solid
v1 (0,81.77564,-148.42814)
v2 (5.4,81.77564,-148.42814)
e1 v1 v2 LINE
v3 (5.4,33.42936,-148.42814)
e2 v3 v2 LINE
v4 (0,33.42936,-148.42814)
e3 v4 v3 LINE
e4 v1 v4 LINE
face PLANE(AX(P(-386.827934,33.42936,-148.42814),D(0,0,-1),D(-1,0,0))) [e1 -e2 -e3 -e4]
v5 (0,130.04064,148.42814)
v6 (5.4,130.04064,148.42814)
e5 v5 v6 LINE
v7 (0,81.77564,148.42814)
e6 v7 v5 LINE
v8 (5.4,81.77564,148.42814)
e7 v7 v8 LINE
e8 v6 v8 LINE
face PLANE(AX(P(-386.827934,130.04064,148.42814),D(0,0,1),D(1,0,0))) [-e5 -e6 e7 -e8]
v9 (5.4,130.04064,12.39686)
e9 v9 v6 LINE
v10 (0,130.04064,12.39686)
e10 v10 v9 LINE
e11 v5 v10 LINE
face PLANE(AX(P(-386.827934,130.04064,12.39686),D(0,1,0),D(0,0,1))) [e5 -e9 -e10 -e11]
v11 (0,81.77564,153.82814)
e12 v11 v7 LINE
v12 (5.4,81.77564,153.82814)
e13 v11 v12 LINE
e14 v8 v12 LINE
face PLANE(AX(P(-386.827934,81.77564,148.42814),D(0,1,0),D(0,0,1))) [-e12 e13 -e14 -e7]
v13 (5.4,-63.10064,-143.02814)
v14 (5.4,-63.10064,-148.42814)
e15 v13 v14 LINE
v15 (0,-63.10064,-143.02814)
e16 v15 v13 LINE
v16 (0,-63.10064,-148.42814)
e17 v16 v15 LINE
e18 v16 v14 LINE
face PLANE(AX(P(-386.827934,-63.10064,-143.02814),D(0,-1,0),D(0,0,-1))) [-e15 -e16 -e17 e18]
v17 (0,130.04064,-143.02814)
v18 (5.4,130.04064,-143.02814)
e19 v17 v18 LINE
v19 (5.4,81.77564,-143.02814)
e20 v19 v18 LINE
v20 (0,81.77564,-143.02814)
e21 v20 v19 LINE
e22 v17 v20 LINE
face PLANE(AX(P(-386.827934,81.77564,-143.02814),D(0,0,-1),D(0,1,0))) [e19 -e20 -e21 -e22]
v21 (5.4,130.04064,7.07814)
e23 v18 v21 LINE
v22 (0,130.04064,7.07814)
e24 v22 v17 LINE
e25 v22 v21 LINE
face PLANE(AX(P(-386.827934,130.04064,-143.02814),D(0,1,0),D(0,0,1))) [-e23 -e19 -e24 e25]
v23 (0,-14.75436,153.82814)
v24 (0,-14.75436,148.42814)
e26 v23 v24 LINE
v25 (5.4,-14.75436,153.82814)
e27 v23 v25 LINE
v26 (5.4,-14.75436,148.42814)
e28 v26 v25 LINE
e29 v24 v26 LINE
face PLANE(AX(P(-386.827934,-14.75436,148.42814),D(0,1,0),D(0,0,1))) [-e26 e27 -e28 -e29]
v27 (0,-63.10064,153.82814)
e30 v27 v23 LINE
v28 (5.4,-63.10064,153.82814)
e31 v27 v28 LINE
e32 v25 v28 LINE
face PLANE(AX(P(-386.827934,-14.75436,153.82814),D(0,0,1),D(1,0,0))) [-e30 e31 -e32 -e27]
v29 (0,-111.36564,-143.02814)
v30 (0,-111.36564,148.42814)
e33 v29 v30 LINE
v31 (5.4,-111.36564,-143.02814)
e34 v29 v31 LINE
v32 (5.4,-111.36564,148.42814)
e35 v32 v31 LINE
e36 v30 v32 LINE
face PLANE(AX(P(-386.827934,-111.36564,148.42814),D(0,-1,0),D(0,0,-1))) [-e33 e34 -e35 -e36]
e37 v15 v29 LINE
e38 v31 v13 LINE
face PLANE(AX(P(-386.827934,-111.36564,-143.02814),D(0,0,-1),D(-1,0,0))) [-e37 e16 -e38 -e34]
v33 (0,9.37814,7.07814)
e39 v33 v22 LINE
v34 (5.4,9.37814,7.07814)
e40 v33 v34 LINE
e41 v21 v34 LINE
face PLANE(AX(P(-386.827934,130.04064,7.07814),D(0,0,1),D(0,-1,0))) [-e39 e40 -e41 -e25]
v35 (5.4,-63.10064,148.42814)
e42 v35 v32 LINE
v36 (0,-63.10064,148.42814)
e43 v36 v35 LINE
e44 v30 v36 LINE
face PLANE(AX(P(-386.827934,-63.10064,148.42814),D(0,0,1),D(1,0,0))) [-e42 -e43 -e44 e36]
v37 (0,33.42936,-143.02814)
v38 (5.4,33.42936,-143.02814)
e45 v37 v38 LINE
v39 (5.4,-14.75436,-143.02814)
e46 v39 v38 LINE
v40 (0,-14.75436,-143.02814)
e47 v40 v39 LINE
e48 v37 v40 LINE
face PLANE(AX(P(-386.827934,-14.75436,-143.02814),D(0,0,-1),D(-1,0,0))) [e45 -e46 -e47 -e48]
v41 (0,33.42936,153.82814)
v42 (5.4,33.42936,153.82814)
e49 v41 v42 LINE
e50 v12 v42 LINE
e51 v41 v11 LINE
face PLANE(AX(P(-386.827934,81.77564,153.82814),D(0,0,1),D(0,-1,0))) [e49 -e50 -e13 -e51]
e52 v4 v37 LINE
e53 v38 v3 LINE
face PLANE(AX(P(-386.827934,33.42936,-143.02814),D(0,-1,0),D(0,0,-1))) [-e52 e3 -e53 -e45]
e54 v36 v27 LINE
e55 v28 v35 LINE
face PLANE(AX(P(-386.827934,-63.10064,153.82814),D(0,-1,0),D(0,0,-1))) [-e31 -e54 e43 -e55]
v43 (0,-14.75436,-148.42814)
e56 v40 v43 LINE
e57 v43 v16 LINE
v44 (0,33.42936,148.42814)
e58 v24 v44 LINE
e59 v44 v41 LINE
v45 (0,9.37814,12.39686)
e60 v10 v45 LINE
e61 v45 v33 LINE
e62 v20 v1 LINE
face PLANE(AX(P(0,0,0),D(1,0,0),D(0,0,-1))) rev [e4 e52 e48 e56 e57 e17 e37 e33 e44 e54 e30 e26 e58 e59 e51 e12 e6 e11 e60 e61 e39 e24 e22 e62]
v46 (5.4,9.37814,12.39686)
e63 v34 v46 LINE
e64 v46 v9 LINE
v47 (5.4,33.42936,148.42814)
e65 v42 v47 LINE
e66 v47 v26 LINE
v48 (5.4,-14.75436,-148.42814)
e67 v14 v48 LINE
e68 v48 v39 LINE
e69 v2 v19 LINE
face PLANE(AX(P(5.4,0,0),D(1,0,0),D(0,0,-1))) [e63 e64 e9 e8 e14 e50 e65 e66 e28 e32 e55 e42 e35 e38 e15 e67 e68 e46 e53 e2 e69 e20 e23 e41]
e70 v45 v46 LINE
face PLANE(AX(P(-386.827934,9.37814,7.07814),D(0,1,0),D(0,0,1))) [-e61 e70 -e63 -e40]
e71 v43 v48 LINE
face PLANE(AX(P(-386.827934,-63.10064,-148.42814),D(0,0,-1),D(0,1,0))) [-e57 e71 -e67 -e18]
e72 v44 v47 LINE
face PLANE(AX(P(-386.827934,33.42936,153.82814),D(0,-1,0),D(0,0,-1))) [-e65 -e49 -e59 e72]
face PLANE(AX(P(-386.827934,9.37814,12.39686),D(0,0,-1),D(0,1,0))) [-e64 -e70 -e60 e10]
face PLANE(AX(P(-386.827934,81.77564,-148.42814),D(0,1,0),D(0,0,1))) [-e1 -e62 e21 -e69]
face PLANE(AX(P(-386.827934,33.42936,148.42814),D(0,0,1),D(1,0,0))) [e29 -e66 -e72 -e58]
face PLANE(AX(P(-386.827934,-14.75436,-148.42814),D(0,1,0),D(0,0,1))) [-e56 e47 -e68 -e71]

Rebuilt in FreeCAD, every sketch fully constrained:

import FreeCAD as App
import Part
import Sketcher

V = App.Vector
Q = App.Units.Quantity

doc = App.newDocument("Part")
params = doc.addObject("Spreadsheet::Sheet", "Params")
for row, (alias, value) in enumerate([
    ("sketch1_height", "5.4 mm"),
    ("sketch1_height2", "135.95 mm"),
    ("pad1_length", "5.4 mm"),
    ("sketch2_height", "5.4 mm"),
    ("pad2_length", "5.4 mm"),
], start=1):
    params.set(f"A{row}", alias)
    params.set(f"B{row}", "=" + value)
    params.setAlias(f"B{row}", alias)

body = doc.addObject("PartDesign::Body", "Body")

# Sketch on YZ plane
sketch1 = body.newObject("Sketcher::SketchObject", "Sketch")
sketch1.AttachmentSupport = (doc.getObject("YZ_Plane"), [""])
sketch1.MapMode = "FlatFace"
sketch1.addGeometry(Part.LineSegment(V(130, -142.9875, 0), V(130, 7.0375, 0)), False)
sketch1.addGeometry(Part.LineSegment(V(130, 7.0375, 0), V(9.3375, 7.0375, 0)), False)
sketch1.addGeometry(Part.LineSegment(V(9.3375, 7.0375, 0), V(9.3375, 12.4375, 0)), False)
sketch1.addGeometry(Part.LineSegment(V(9.3375, 12.4375, 0), V(130, 12.4375, 0)), False)
sketch1.addGeometry(Part.LineSegment(V(130, 12.4375, 0), V(130, 148.3875, 0)), False)
sketch1.addGeometry(Part.LineSegment(V(130, 148.3875, 0), V(81.735, 148.3875, 0)), False)
sketch1.addGeometry(Part.LineSegment(V(81.735, 148.3875, 0), V(81.735, 153.7875, 0)), False)
sketch1.addGeometry(Part.LineSegment(V(81.735, 153.7875, 0), V(33.47, 153.7875, 0)), False)
sketch1.addGeometry(Part.LineSegment(V(33.47, 153.7875, 0), V(33.47, 148.3875, 0)), False)
sketch1.addGeometry(Part.LineSegment(V(33.47, 148.3875, 0), V(-14.795, 148.3875, 0)), False)
sketch1.addGeometry(Part.LineSegment(V(-14.795, 148.3875, 0), V(-14.795, 153.7875, 0)), False)
sketch1.addGeometry(Part.LineSegment(V(-14.795, 153.7875, 0), V(-63.06, 153.7875, 0)), False)
sketch1.addGeometry(Part.LineSegment(V(-63.06, 153.7875, 0), V(-63.06, 148.3875, 0)), False)
sketch1.addGeometry(Part.LineSegment(V(-63.06, 148.3875, 0), V(-111.325, 148.3875, 0)), False)
sketch1.addGeometry(Part.LineSegment(V(-111.325, 148.3875, 0), V(-111.325, -142.9875, 0)), False)
sketch1.addGeometry(Part.LineSegment(V(-111.325, -142.9875, 0), V(-63.06, -142.9875, 0)), False)
sketch1.addGeometry(Part.LineSegment(V(-63.06, -142.9875, 0), V(-63.06, -148.3875, 0)), False)
sketch1.addGeometry(Part.LineSegment(V(-63.06, -148.3875, 0), V(-14.795, -148.3875, 0)), False)
sketch1.addGeometry(Part.LineSegment(V(-14.795, -148.3875, 0), V(-14.795, -142.9875, 0)), False)
sketch1.addGeometry(Part.LineSegment(V(-14.795, -142.9875, 0), V(33.47, -142.9875, 0)), False)
sketch1.addGeometry(Part.LineSegment(V(33.47, -142.9875, 0), V(33.47, -148.3875, 0)), False)
sketch1.addGeometry(Part.LineSegment(V(33.47, -148.3875, 0), V(81.735, -148.3875, 0)), False)
sketch1.addGeometry(Part.LineSegment(V(81.735, -148.3875, 0), V(81.735, -142.9875, 0)), False)
sketch1.addGeometry(Part.LineSegment(V(81.735, -142.9875, 0), V(130, -142.9875, 0)), False)
sketch1.addConstraint(Sketcher.Constraint("Coincident", 0, 2, 1, 1))
sketch1.addConstraint(Sketcher.Constraint("Coincident", 1, 2, 2, 1))
sketch1.addConstraint(Sketcher.Constraint("Coincident", 2, 2, 3, 1))
sketch1.addConstraint(Sketcher.Constraint("Coincident", 3, 2, 4, 1))
sketch1.addConstraint(Sketcher.Constraint("Coincident", 4, 2, 5, 1))
sketch1.addConstraint(Sketcher.Constraint("Coincident", 5, 2, 6, 1))
sketch1.addConstraint(Sketcher.Constraint("Coincident", 6, 2, 7, 1))
sketch1.addConstraint(Sketcher.Constraint("Coincident", 7, 2, 8, 1))
sketch1.addConstraint(Sketcher.Constraint("Coincident", 8, 2, 9, 1))
sketch1.addConstraint(Sketcher.Constraint("Coincident", 9, 2, 10, 1))
sketch1.addConstraint(Sketcher.Constraint("Coincident", 10, 2, 11, 1))
sketch1.addConstraint(Sketcher.Constraint("Coincident", 11, 2, 12, 1))
sketch1.addConstraint(Sketcher.Constraint("Coincident", 12, 2, 13, 1))
sketch1.addConstraint(Sketcher.Constraint("Coincident", 13, 2, 14, 1))
sketch1.addConstraint(Sketcher.Constraint("Coincident", 14, 2, 15, 1))
sketch1.addConstraint(Sketcher.Constraint("Coincident", 15, 2, 16, 1))
sketch1.addConstraint(Sketcher.Constraint("Coincident", 16, 2, 17, 1))
sketch1.addConstraint(Sketcher.Constraint("Coincident", 17, 2, 18, 1))
sketch1.addConstraint(Sketcher.Constraint("Coincident", 18, 2, 19, 1))
sketch1.addConstraint(Sketcher.Constraint("Coincident", 19, 2, 20, 1))
sketch1.addConstraint(Sketcher.Constraint("Coincident", 20, 2, 21, 1))
sketch1.addConstraint(Sketcher.Constraint("Coincident", 21, 2, 22, 1))
sketch1.addConstraint(Sketcher.Constraint("Coincident", 22, 2, 23, 1))
sketch1.addConstraint(Sketcher.Constraint("Coincident", 23, 2, 0, 1))
sketch1.addConstraint(Sketcher.Constraint("Vertical", 0))
sketch1.addConstraint(Sketcher.Constraint("Horizontal", 1))
sketch1.addConstraint(Sketcher.Constraint("Vertical", 2))
sketch1.addConstraint(Sketcher.Constraint("Horizontal", 3))
sketch1.addConstraint(Sketcher.Constraint("Vertical", 4))
sketch1.addConstraint(Sketcher.Constraint("Horizontal", 5))
sketch1.addConstraint(Sketcher.Constraint("Vertical", 6))
sketch1.addConstraint(Sketcher.Constraint("Horizontal", 7))
sketch1.addConstraint(Sketcher.Constraint("Vertical", 8))
sketch1.addConstraint(Sketcher.Constraint("Horizontal", 9))
sketch1.addConstraint(Sketcher.Constraint("Vertical", 10))
sketch1.addConstraint(Sketcher.Constraint("Horizontal", 11))
sketch1.addConstraint(Sketcher.Constraint("Vertical", 12))
sketch1.addConstraint(Sketcher.Constraint("Horizontal", 13))
sketch1.addConstraint(Sketcher.Constraint("Vertical", 14))
sketch1.addConstraint(Sketcher.Constraint("Horizontal", 15))
sketch1.addConstraint(Sketcher.Constraint("Vertical", 16))
sketch1.addConstraint(Sketcher.Constraint("Horizontal", 17))
sketch1.addConstraint(Sketcher.Constraint("Vertical", 18))
sketch1.addConstraint(Sketcher.Constraint("Horizontal", 19))
sketch1.addConstraint(Sketcher.Constraint("Vertical", 20))
sketch1.addConstraint(Sketcher.Constraint("Horizontal", 21))
sketch1.addConstraint(Sketcher.Constraint("Vertical", 22))
sketch1.addConstraint(Sketcher.Constraint("Horizontal", 23))
sketch1.addConstraint(Sketcher.Constraint("Symmetric", 12, 2, 16, 2, -1))
sketch1.addConstraint(Sketcher.Constraint("Symmetric", 9, 2, 17, 2, -1))
sketch1.addConstraint(Sketcher.Constraint("Symmetric", 8, 2, 20, 2, -1))
sketch1.addConstraint(Sketcher.Constraint("Symmetric", 5, 2, 21, 2, -1))
sketch1.addConstraint(Sketcher.Constraint("Horizontal", 7, 2, 10, 2))
sketch1.addConstraint(Sketcher.Constraint("Horizontal", 15, 2, 18, 2))
sketch1.addConstraint(Sketcher.Constraint("Horizontal", 19, 2, 22, 2))
sketch1.addConstraint(Sketcher.Constraint("Vertical", 0, 2, 3, 2))
sketch1.addConstraint(Sketcher.Constraint("Equal", 5, 7))
sketch1.addConstraint(Sketcher.Constraint("Equal", 7, 9))
sketch1.addConstraint(Sketcher.Constraint("Equal", 9, 11))
sketch1.addConstraint(Sketcher.Constraint("Equal", 11, 13))
sketch1.addConstraint(Sketcher.Constraint("Equal", 2, 6))
sketch1.addConstraint(Sketcher.Constraint("Equal", 12, 16))
sketch1.addConstraint(Sketcher.Constraint("DistanceY", 2, 1, 2, 2, Q("5.4 mm")))
sketch1.addConstraint(Sketcher.Constraint("DistanceX", -1, 1, 0, 2, Q("130 mm")))
sketch1.addConstraint(Sketcher.Constraint("DistanceY", 4, 1, 4, 2, Q("135.95 mm")))
sketch1.addConstraint(Sketcher.Constraint("DistanceX", 5, 2, 5, 1, Q("48.265 mm")))
sketch1.addConstraint(Sketcher.Constraint("DistanceY", 0, 1, 0, 2, Q("150.025 mm")))
sketch1.addConstraint(Sketcher.Constraint("DistanceX", 1, 2, 1, 1, Q("120.6625 mm")))
sketch1.setExpression("Constraints[62]", "Params.sketch1_height")
sketch1.setExpression("Constraints[64]", "Params.sketch1_height2")
pad1 = body.newObject("PartDesign::Pad", "Pad")
pad1.Profile = sketch1
pad1.setExpression("Length", "Params.pad1_length")

# Sketch on YZ plane
sketch2 = body.newObject("Sketcher::SketchObject", "Sketch001")
sketch2.AttachmentSupport = (doc.getObject("YZ_Plane"), [""])
sketch2.MapMode = "FlatFace"
sketch2.AttachmentOffset = App.Placement(V(0, 0, 5.4), App.Rotation())
sketch2.addGeometry(Part.LineSegment(V(-111.36564, 148.42814, 0), V(-111.36564, -143.02814, 0)), False)
sketch2.addGeometry(Part.LineSegment(V(-111.36564, -143.02814, 0), V(-63.10064, -143.02814, 0)), False)
sketch2.addGeometry(Part.LineSegment(V(-63.10064, -143.02814, 0), V(-63.10064, -148.42814, 0)), False)
sketch2.addGeometry(Part.LineSegment(V(-63.10064, -148.42814, 0), V(-14.75436, -148.42814, 0)), False)
sketch2.addGeometry(Part.LineSegment(V(-14.75436, -148.42814, 0), V(-14.75436, -143.02814, 0)), False)
sketch2.addGeometry(Part.LineSegment(V(-14.75436, -143.02814, 0), V(33.42936, -143.02814, 0)), False)
sketch2.addGeometry(Part.LineSegment(V(33.42936, -143.02814, 0), V(33.42936, -148.42814, 0)), False)
sketch2.addGeometry(Part.LineSegment(V(33.42936, -148.42814, 0), V(81.77564, -148.42814, 0)), False)
sketch2.addGeometry(Part.LineSegment(V(81.77564, -148.42814, 0), V(81.77564, -143.02814, 0)), False)
sketch2.addGeometry(Part.LineSegment(V(81.77564, -143.02814, 0), V(130.04064, -143.02814, 0)), False)
sketch2.addGeometry(Part.LineSegment(V(130.04064, -143.02814, 0), V(130.04064, 7.07814, 0)), False)
sketch2.addGeometry(Part.LineSegment(V(130.04064, 7.07814, 0), V(9.37814, 7.07814, 0)), False)
sketch2.addGeometry(Part.LineSegment(V(9.37814, 7.07814, 0), V(9.37814, 12.39686, 0)), False)
sketch2.addGeometry(Part.LineSegment(V(9.37814, 12.39686, 0), V(130.04064, 12.39686, 0)), False)
sketch2.addGeometry(Part.LineSegment(V(130.04064, 12.39686, 0), V(130.04064, 148.42814, 0)), False)
sketch2.addGeometry(Part.LineSegment(V(130.04064, 148.42814, 0), V(81.77564, 148.42814, 0)), False)
sketch2.addGeometry(Part.LineSegment(V(81.77564, 148.42814, 0), V(81.77564, 153.82814, 0)), False)
sketch2.addGeometry(Part.LineSegment(V(81.77564, 153.82814, 0), V(33.42936, 153.82814, 0)), False)
sketch2.addGeometry(Part.LineSegment(V(33.42936, 153.82814, 0), V(33.42936, 148.42814, 0)), False)
sketch2.addGeometry(Part.LineSegment(V(33.42936, 148.42814, 0), V(-14.75436, 148.42814, 0)), False)
sketch2.addGeometry(Part.LineSegment(V(-14.75436, 148.42814, 0), V(-14.75436, 153.82814, 0)), False)
sketch2.addGeometry(Part.LineSegment(V(-14.75436, 153.82814, 0), V(-63.10064, 153.82814, 0)), False)
sketch2.addGeometry(Part.LineSegment(V(-63.10064, 153.82814, 0), V(-63.10064, 148.42814, 0)), False)
sketch2.addGeometry(Part.LineSegment(V(-63.10064, 148.42814, 0), V(-111.36564, 148.42814, 0)), False)
sketch2.addConstraint(Sketcher.Constraint("Coincident", 0, 2, 1, 1))
sketch2.addConstraint(Sketcher.Constraint("Coincident", 1, 2, 2, 1))
sketch2.addConstraint(Sketcher.Constraint("Coincident", 2, 2, 3, 1))
sketch2.addConstraint(Sketcher.Constraint("Coincident", 3, 2, 4, 1))
sketch2.addConstraint(Sketcher.Constraint("Coincident", 4, 2, 5, 1))
sketch2.addConstraint(Sketcher.Constraint("Coincident", 5, 2, 6, 1))
sketch2.addConstraint(Sketcher.Constraint("Coincident", 6, 2, 7, 1))
sketch2.addConstraint(Sketcher.Constraint("Coincident", 7, 2, 8, 1))
sketch2.addConstraint(Sketcher.Constraint("Coincident", 8, 2, 9, 1))
sketch2.addConstraint(Sketcher.Constraint("Coincident", 9, 2, 10, 1))
sketch2.addConstraint(Sketcher.Constraint("Coincident", 10, 2, 11, 1))
sketch2.addConstraint(Sketcher.Constraint("Coincident", 11, 2, 12, 1))
sketch2.addConstraint(Sketcher.Constraint("Coincident", 12, 2, 13, 1))
sketch2.addConstraint(Sketcher.Constraint("Coincident", 13, 2, 14, 1))
sketch2.addConstraint(Sketcher.Constraint("Coincident", 14, 2, 15, 1))
sketch2.addConstraint(Sketcher.Constraint("Coincident", 15, 2, 16, 1))
sketch2.addConstraint(Sketcher.Constraint("Coincident", 16, 2, 17, 1))
sketch2.addConstraint(Sketcher.Constraint("Coincident", 17, 2, 18, 1))
sketch2.addConstraint(Sketcher.Constraint("Coincident", 18, 2, 19, 1))
sketch2.addConstraint(Sketcher.Constraint("Coincident", 19, 2, 20, 1))
sketch2.addConstraint(Sketcher.Constraint("Coincident", 20, 2, 21, 1))
sketch2.addConstraint(Sketcher.Constraint("Coincident", 21, 2, 22, 1))
sketch2.addConstraint(Sketcher.Constraint("Coincident", 22, 2, 23, 1))
sketch2.addConstraint(Sketcher.Constraint("Coincident", 23, 2, 0, 1))
sketch2.addConstraint(Sketcher.Constraint("Vertical", 0))
sketch2.addConstraint(Sketcher.Constraint("Horizontal", 1))
sketch2.addConstraint(Sketcher.Constraint("Vertical", 2))
sketch2.addConstraint(Sketcher.Constraint("Horizontal", 3))
sketch2.addConstraint(Sketcher.Constraint("Vertical", 4))
sketch2.addConstraint(Sketcher.Constraint("Horizontal", 5))
sketch2.addConstraint(Sketcher.Constraint("Vertical", 6))
sketch2.addConstraint(Sketcher.Constraint("Horizontal", 7))
sketch2.addConstraint(Sketcher.Constraint("Vertical", 8))
sketch2.addConstraint(Sketcher.Constraint("Horizontal", 9))
sketch2.addConstraint(Sketcher.Constraint("Vertical", 10))
sketch2.addConstraint(Sketcher.Constraint("Horizontal", 11))
sketch2.addConstraint(Sketcher.Constraint("Vertical", 12))
sketch2.addConstraint(Sketcher.Constraint("Horizontal", 13))
sketch2.addConstraint(Sketcher.Constraint("Vertical", 14))
sketch2.addConstraint(Sketcher.Constraint("Horizontal", 15))
sketch2.addConstraint(Sketcher.Constraint("Vertical", 16))
sketch2.addConstraint(Sketcher.Constraint("Horizontal", 17))
sketch2.addConstraint(Sketcher.Constraint("Vertical", 18))
sketch2.addConstraint(Sketcher.Constraint("Horizontal", 19))
sketch2.addConstraint(Sketcher.Constraint("Vertical", 20))
sketch2.addConstraint(Sketcher.Constraint("Horizontal", 21))
sketch2.addConstraint(Sketcher.Constraint("Vertical", 22))
sketch2.addConstraint(Sketcher.Constraint("Horizontal", 23))
sketch2.addConstraint(Sketcher.Constraint("Symmetric", 7, 2, 15, 2, -1))
sketch2.addConstraint(Sketcher.Constraint("Symmetric", 6, 2, 18, 2, -1))
sketch2.addConstraint(Sketcher.Constraint("Symmetric", 3, 2, 19, 2, -1))
sketch2.addConstraint(Sketcher.Constraint("Symmetric", 2, 2, 22, 2, -1))
sketch2.addConstraint(Sketcher.Constraint("Horizontal", 1, 2, 4, 2))
sketch2.addConstraint(Sketcher.Constraint("Horizontal", 5, 2, 8, 2))
sketch2.addConstraint(Sketcher.Constraint("Horizontal", 17, 2, 20, 2))
sketch2.addConstraint(Sketcher.Constraint("Vertical", 10, 2, 13, 2))
sketch2.addConstraint(Sketcher.Constraint("Equal", 3, 7))
sketch2.addConstraint(Sketcher.Constraint("Equal", 1, 9))
sketch2.addConstraint(Sketcher.Constraint("Equal", 8, 16))
sketch2.addConstraint(Sketcher.Constraint("DistanceY", 2, 2, 2, 1, Q("5.4 mm")))
sketch2.addConstraint(Sketcher.Constraint("DistanceX", 1, 1, 1, 2, Q("48.265 mm")))
sketch2.addConstraint(Sketcher.Constraint("DistanceX", 1, 2, 5, 2, Q("96.53 mm")))
sketch2.addConstraint(Sketcher.Constraint("DistanceY", 10, 2, 14, 2, Q("141.35 mm")))
sketch2.addConstraint(Sketcher.Constraint("DistanceX", 11, 2, 11, 1, Q("120.6625 mm")))
sketch2.addConstraint(Sketcher.Constraint("DistanceY", 5, 2, 12, 2, Q("155.425 mm")))
sketch2.addConstraint(Sketcher.Constraint("DistanceX", 3, 1, 3, 2, Q("48.34628 mm")))
sketch2.addConstraint(Sketcher.Constraint("DistanceY", 0, 2, 0, 1, Q("291.45628 mm")))
sketch2.addConstraint(Sketcher.Constraint("DistanceX", 0, 2, -1, 1, Q("111.36564 mm")))
sketch2.setExpression("Constraints[59]", "Params.sketch2_height")
pad2 = body.newObject("PartDesign::Pad", "Pad001")
pad2.Profile = sketch2
pad2.setExpression("Length", "Params.pad2_length")
pad2.Reversed = True

doc.recompute()
